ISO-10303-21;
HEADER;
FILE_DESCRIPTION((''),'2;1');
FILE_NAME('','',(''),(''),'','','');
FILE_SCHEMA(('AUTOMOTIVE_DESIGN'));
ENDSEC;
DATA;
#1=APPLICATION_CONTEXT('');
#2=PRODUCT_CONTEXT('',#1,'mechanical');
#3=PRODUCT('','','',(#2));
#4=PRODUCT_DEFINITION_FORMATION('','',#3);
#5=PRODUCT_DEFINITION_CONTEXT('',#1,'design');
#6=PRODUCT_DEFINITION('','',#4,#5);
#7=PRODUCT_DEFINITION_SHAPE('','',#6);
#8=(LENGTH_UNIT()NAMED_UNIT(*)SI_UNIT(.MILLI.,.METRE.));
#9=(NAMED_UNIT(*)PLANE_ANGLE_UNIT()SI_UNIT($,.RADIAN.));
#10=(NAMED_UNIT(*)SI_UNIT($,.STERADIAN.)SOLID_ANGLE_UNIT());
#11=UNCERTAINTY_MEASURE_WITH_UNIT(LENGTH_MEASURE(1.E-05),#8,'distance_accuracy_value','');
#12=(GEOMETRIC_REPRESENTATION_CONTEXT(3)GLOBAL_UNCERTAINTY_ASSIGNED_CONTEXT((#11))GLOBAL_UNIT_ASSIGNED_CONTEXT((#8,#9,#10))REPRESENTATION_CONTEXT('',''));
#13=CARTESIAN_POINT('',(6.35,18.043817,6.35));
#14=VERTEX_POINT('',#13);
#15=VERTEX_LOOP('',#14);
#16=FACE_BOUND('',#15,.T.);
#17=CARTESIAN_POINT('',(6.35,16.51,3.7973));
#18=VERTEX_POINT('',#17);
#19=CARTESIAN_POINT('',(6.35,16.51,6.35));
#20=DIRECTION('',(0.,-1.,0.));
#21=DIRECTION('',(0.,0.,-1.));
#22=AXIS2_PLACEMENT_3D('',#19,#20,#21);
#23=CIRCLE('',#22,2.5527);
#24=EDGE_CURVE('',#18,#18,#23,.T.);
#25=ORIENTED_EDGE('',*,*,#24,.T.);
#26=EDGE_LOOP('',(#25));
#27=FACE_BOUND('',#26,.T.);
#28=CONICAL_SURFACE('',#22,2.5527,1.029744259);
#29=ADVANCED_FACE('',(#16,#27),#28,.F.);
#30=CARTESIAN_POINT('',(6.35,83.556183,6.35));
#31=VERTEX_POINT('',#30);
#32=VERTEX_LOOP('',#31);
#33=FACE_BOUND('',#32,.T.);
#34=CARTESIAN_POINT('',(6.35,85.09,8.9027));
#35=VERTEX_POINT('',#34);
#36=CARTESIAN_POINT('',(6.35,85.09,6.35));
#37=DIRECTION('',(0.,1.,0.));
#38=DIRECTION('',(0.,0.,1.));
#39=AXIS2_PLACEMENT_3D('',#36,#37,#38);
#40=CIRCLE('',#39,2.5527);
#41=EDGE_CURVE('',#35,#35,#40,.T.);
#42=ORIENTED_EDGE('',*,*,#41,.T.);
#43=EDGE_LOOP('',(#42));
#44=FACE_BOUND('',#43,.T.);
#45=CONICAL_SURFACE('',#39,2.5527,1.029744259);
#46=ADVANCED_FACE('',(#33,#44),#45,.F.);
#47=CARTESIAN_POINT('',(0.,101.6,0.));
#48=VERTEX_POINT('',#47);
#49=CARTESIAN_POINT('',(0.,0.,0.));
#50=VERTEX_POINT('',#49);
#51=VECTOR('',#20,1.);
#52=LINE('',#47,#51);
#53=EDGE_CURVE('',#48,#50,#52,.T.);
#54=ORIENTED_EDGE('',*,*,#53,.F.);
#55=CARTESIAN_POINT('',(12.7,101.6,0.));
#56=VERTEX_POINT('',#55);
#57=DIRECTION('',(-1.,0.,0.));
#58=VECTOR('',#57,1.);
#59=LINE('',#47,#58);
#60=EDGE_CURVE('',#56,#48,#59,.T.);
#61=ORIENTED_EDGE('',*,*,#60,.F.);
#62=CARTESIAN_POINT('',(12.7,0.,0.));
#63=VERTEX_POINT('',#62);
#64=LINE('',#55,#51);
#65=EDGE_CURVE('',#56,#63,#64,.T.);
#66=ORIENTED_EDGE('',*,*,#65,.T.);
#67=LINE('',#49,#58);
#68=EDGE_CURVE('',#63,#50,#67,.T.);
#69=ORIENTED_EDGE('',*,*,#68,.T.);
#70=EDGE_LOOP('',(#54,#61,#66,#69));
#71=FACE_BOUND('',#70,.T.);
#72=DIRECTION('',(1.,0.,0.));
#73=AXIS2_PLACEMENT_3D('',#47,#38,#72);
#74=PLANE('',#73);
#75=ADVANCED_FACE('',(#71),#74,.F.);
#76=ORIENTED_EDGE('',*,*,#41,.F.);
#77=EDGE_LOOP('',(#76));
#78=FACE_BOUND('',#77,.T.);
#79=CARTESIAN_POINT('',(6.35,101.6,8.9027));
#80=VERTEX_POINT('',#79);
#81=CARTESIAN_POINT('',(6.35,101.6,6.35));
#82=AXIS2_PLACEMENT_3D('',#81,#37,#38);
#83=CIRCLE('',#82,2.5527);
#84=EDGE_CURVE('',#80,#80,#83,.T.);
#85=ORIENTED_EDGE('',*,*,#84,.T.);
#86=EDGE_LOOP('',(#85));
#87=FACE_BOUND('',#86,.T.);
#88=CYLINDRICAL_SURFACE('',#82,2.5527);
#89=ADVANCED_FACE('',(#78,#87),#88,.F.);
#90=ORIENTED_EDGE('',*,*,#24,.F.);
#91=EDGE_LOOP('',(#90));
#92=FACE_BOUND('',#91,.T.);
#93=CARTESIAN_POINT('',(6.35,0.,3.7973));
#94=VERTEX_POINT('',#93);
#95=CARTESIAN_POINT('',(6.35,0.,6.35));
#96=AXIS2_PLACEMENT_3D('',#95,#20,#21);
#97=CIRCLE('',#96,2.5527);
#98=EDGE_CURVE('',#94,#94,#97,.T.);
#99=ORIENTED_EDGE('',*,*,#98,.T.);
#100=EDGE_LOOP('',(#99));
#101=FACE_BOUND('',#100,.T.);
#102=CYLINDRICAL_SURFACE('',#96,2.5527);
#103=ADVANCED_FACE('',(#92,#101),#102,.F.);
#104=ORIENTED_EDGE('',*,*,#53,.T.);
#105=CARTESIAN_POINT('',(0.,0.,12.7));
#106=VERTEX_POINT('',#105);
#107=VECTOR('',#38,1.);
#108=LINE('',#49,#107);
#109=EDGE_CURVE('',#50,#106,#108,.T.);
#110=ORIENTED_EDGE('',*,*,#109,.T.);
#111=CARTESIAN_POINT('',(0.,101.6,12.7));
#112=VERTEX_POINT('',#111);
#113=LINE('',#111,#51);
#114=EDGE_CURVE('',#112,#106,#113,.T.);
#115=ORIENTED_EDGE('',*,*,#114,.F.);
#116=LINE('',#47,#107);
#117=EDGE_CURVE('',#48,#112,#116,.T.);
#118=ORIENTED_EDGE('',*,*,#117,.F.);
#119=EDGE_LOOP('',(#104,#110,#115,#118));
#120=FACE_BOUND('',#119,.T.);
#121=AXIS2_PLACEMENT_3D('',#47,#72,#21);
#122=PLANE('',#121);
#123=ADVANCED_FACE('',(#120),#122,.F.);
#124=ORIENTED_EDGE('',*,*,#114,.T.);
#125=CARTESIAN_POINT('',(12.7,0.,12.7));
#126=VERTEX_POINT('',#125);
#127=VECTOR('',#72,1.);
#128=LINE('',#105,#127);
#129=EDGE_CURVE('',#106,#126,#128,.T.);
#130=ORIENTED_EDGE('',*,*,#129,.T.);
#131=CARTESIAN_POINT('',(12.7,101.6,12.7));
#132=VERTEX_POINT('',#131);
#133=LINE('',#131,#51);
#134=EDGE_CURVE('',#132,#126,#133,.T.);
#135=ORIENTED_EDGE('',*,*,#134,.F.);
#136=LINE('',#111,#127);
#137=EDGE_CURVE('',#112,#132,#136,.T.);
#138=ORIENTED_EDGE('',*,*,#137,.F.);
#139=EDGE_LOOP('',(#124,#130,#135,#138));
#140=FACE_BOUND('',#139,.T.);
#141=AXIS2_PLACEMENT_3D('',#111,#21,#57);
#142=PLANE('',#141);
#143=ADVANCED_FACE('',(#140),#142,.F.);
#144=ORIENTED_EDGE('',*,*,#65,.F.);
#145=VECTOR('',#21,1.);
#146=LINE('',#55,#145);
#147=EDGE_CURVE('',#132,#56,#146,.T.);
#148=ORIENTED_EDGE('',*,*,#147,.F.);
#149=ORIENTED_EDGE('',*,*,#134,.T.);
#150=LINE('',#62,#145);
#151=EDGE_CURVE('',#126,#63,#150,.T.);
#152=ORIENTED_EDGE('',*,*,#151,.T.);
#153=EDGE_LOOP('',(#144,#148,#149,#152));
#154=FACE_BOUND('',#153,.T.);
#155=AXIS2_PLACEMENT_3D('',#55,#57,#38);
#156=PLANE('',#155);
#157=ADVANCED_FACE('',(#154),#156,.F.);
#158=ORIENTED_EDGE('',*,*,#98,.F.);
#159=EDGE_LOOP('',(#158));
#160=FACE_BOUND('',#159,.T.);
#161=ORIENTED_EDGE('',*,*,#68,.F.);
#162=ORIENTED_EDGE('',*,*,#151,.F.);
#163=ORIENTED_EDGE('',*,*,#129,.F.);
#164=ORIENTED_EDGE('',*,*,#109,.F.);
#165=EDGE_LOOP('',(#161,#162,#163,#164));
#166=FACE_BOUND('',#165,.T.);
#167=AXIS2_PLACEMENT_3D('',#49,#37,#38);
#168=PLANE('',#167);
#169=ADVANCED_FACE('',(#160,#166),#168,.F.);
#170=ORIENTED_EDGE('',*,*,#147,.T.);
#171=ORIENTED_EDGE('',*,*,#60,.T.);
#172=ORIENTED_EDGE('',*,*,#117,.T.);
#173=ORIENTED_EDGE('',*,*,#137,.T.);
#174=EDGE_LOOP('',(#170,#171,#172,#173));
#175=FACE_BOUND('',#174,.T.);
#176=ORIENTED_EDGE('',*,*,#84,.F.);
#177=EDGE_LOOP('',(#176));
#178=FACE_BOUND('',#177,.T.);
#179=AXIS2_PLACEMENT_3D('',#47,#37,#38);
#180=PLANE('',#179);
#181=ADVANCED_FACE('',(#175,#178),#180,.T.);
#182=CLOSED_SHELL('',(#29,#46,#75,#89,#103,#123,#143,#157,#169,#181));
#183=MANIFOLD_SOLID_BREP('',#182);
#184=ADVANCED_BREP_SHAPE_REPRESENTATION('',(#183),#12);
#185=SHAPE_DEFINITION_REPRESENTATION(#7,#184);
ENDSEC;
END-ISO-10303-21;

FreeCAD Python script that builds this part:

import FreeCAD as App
import Part
import Sketcher

V = App.Vector
Q = App.Units.Quantity


def add_polygon(sketch, points):
    """Adds a closed chain of lines whose ends are joined by coincident constraints."""
    first, n = sketch.GeometryCount, len(points)
    for a, b in zip(points, points[1:] + points[:1]):
        sketch.addGeometry(Part.LineSegment(App.Vector(*a, 0), App.Vector(*b, 0)), False)
    for i in range(n):
        sketch.addConstraint(Sketcher.Constraint("Coincident", first + i, 2, first + (i + 1) % n, 1))

doc = App.newDocument("Part")
params = doc.addObject("Spreadsheet::Sheet", "Params")
for row, (alias, value) in enumerate([
    ("sketch1_width", "0.5 in"),
    ("pad1_length", "4 in"),
    ("sketch2_diameter", "0.201 in"),
    ("hole_diameter", "0.201 in"),
    ("hole_depth", "0.65 in"),
    ("sketch3_diameter", "0.201 in"),
    ("hole2_diameter", "0.201 in"),
    ("hole2_depth", "0.65 in"),
], start=1):
    params.set(f"A{row}", alias)
    params.set(f"B{row}", "=" + value)
    params.setAlias(f"B{row}", alias)

body = doc.addObject("PartDesign::Body", "Body")

# Sketch on XZ plane
sketch1 = body.newObject("Sketcher::SketchObject", "Sketch")
sketch1.AttachmentSupport = (doc.getObject("XZ_Plane"), [""])
sketch1.MapMode = "FlatFace"
add_polygon(sketch1, [(0, 0), (0, 12.7), (12.7, 12.7), (12.7, 0)])  # lines 0-3
sketch1.addConstraint([
    Sketcher.Constraint("Vertical", 0),
    Sketcher.Constraint("Horizontal", 1),
    Sketcher.Constraint("Vertical", 2),
    Sketcher.Constraint("Horizontal", 3),
    Sketcher.Constraint("Coincident", 3, 2, -1, 1),
    Sketcher.Constraint("Equal", 3, 0),
    Sketcher.Constraint("DistanceX", 1, 1, 1, 2, Q("0.5 in")),
])
sketch1.setExpression("Constraints[10]", "Params.sketch1_width")
pad1 = body.newObject("PartDesign::Pad", "Pad")
pad1.Profile = sketch1
pad1.setExpression("Length", "Params.pad1_length")
pad1.Reversed = True

# Sketch on XZ plane
sketch2 = body.newObject("Sketcher::SketchObject", "Sketch001")
sketch2.AttachmentSupport = (doc.getObject("XZ_Plane"), [""])
sketch2.MapMode = "FlatFace"
sketch2.addGeometry(Part.Circle(V(6.35, 6.35, 0), V(0, 0, 1), 2.5527), False)
sketch2.addConstraint([
    Sketcher.Constraint("Diameter", 0, Q("0.201 in")),
    Sketcher.Constraint("DistanceX", -1, 1, 0, 3, Q("0.25 in")),
    Sketcher.Constraint("DistanceY", -1, 1, 0, 3, Q("0.25 in")),
])
sketch2.setExpression("Constraints[0]", "Params.sketch2_diameter")
doc.recompute()
hole = body.newObject("PartDesign::Hole", "Hole")
hole.Profile = sketch2
hole.ThreadType = "None"
hole.setExpression("Diameter", "Params.hole_diameter")
hole.DepthType = "Dimension"
hole.setExpression("Depth", "Params.hole_depth")
hole.DrillPoint = "Angled"
hole.DrillPointAngle = 118

# Sketch on XZ plane
sketch3 = body.newObject("Sketcher::SketchObject", "Sketch002")
sketch3.AttachmentSupport = (doc.getObject("XZ_Plane"), [""])
sketch3.MapMode = "FlatFace"
sketch3.AttachmentOffset = App.Placement(V(0, 0, -4 * 25.4), App.Rotation())
sketch3.addGeometry(Part.Circle(V(6.35, 6.35, 0), V(0, 0, 1), 2.5527), False)
sketch3.addConstraint([
    Sketcher.Constraint("Diameter", 0, Q("0.201 in")),
    Sketcher.Constraint("DistanceX", -1, 1, 0, 3, Q("0.25 in")),
    Sketcher.Constraint("DistanceY", -1, 1, 0, 3, Q("0.25 in")),
])
sketch3.setExpression("Constraints[0]", "Params.sketch3_diameter")
doc.recompute()
hole2 = body.newObject("PartDesign::Hole", "Hole001")
hole2.Profile = sketch3
hole2.ThreadType = "None"
hole2.setExpression("Diameter", "Params.hole2_diameter")
hole2.DepthType = "Dimension"
hole2.setExpression("Depth", "Params.hole2_depth")
hole2.DrillPoint = "Angled"
hole2.DrillPointAngle = 118
hole2.Reversed = True

doc.recompute()
